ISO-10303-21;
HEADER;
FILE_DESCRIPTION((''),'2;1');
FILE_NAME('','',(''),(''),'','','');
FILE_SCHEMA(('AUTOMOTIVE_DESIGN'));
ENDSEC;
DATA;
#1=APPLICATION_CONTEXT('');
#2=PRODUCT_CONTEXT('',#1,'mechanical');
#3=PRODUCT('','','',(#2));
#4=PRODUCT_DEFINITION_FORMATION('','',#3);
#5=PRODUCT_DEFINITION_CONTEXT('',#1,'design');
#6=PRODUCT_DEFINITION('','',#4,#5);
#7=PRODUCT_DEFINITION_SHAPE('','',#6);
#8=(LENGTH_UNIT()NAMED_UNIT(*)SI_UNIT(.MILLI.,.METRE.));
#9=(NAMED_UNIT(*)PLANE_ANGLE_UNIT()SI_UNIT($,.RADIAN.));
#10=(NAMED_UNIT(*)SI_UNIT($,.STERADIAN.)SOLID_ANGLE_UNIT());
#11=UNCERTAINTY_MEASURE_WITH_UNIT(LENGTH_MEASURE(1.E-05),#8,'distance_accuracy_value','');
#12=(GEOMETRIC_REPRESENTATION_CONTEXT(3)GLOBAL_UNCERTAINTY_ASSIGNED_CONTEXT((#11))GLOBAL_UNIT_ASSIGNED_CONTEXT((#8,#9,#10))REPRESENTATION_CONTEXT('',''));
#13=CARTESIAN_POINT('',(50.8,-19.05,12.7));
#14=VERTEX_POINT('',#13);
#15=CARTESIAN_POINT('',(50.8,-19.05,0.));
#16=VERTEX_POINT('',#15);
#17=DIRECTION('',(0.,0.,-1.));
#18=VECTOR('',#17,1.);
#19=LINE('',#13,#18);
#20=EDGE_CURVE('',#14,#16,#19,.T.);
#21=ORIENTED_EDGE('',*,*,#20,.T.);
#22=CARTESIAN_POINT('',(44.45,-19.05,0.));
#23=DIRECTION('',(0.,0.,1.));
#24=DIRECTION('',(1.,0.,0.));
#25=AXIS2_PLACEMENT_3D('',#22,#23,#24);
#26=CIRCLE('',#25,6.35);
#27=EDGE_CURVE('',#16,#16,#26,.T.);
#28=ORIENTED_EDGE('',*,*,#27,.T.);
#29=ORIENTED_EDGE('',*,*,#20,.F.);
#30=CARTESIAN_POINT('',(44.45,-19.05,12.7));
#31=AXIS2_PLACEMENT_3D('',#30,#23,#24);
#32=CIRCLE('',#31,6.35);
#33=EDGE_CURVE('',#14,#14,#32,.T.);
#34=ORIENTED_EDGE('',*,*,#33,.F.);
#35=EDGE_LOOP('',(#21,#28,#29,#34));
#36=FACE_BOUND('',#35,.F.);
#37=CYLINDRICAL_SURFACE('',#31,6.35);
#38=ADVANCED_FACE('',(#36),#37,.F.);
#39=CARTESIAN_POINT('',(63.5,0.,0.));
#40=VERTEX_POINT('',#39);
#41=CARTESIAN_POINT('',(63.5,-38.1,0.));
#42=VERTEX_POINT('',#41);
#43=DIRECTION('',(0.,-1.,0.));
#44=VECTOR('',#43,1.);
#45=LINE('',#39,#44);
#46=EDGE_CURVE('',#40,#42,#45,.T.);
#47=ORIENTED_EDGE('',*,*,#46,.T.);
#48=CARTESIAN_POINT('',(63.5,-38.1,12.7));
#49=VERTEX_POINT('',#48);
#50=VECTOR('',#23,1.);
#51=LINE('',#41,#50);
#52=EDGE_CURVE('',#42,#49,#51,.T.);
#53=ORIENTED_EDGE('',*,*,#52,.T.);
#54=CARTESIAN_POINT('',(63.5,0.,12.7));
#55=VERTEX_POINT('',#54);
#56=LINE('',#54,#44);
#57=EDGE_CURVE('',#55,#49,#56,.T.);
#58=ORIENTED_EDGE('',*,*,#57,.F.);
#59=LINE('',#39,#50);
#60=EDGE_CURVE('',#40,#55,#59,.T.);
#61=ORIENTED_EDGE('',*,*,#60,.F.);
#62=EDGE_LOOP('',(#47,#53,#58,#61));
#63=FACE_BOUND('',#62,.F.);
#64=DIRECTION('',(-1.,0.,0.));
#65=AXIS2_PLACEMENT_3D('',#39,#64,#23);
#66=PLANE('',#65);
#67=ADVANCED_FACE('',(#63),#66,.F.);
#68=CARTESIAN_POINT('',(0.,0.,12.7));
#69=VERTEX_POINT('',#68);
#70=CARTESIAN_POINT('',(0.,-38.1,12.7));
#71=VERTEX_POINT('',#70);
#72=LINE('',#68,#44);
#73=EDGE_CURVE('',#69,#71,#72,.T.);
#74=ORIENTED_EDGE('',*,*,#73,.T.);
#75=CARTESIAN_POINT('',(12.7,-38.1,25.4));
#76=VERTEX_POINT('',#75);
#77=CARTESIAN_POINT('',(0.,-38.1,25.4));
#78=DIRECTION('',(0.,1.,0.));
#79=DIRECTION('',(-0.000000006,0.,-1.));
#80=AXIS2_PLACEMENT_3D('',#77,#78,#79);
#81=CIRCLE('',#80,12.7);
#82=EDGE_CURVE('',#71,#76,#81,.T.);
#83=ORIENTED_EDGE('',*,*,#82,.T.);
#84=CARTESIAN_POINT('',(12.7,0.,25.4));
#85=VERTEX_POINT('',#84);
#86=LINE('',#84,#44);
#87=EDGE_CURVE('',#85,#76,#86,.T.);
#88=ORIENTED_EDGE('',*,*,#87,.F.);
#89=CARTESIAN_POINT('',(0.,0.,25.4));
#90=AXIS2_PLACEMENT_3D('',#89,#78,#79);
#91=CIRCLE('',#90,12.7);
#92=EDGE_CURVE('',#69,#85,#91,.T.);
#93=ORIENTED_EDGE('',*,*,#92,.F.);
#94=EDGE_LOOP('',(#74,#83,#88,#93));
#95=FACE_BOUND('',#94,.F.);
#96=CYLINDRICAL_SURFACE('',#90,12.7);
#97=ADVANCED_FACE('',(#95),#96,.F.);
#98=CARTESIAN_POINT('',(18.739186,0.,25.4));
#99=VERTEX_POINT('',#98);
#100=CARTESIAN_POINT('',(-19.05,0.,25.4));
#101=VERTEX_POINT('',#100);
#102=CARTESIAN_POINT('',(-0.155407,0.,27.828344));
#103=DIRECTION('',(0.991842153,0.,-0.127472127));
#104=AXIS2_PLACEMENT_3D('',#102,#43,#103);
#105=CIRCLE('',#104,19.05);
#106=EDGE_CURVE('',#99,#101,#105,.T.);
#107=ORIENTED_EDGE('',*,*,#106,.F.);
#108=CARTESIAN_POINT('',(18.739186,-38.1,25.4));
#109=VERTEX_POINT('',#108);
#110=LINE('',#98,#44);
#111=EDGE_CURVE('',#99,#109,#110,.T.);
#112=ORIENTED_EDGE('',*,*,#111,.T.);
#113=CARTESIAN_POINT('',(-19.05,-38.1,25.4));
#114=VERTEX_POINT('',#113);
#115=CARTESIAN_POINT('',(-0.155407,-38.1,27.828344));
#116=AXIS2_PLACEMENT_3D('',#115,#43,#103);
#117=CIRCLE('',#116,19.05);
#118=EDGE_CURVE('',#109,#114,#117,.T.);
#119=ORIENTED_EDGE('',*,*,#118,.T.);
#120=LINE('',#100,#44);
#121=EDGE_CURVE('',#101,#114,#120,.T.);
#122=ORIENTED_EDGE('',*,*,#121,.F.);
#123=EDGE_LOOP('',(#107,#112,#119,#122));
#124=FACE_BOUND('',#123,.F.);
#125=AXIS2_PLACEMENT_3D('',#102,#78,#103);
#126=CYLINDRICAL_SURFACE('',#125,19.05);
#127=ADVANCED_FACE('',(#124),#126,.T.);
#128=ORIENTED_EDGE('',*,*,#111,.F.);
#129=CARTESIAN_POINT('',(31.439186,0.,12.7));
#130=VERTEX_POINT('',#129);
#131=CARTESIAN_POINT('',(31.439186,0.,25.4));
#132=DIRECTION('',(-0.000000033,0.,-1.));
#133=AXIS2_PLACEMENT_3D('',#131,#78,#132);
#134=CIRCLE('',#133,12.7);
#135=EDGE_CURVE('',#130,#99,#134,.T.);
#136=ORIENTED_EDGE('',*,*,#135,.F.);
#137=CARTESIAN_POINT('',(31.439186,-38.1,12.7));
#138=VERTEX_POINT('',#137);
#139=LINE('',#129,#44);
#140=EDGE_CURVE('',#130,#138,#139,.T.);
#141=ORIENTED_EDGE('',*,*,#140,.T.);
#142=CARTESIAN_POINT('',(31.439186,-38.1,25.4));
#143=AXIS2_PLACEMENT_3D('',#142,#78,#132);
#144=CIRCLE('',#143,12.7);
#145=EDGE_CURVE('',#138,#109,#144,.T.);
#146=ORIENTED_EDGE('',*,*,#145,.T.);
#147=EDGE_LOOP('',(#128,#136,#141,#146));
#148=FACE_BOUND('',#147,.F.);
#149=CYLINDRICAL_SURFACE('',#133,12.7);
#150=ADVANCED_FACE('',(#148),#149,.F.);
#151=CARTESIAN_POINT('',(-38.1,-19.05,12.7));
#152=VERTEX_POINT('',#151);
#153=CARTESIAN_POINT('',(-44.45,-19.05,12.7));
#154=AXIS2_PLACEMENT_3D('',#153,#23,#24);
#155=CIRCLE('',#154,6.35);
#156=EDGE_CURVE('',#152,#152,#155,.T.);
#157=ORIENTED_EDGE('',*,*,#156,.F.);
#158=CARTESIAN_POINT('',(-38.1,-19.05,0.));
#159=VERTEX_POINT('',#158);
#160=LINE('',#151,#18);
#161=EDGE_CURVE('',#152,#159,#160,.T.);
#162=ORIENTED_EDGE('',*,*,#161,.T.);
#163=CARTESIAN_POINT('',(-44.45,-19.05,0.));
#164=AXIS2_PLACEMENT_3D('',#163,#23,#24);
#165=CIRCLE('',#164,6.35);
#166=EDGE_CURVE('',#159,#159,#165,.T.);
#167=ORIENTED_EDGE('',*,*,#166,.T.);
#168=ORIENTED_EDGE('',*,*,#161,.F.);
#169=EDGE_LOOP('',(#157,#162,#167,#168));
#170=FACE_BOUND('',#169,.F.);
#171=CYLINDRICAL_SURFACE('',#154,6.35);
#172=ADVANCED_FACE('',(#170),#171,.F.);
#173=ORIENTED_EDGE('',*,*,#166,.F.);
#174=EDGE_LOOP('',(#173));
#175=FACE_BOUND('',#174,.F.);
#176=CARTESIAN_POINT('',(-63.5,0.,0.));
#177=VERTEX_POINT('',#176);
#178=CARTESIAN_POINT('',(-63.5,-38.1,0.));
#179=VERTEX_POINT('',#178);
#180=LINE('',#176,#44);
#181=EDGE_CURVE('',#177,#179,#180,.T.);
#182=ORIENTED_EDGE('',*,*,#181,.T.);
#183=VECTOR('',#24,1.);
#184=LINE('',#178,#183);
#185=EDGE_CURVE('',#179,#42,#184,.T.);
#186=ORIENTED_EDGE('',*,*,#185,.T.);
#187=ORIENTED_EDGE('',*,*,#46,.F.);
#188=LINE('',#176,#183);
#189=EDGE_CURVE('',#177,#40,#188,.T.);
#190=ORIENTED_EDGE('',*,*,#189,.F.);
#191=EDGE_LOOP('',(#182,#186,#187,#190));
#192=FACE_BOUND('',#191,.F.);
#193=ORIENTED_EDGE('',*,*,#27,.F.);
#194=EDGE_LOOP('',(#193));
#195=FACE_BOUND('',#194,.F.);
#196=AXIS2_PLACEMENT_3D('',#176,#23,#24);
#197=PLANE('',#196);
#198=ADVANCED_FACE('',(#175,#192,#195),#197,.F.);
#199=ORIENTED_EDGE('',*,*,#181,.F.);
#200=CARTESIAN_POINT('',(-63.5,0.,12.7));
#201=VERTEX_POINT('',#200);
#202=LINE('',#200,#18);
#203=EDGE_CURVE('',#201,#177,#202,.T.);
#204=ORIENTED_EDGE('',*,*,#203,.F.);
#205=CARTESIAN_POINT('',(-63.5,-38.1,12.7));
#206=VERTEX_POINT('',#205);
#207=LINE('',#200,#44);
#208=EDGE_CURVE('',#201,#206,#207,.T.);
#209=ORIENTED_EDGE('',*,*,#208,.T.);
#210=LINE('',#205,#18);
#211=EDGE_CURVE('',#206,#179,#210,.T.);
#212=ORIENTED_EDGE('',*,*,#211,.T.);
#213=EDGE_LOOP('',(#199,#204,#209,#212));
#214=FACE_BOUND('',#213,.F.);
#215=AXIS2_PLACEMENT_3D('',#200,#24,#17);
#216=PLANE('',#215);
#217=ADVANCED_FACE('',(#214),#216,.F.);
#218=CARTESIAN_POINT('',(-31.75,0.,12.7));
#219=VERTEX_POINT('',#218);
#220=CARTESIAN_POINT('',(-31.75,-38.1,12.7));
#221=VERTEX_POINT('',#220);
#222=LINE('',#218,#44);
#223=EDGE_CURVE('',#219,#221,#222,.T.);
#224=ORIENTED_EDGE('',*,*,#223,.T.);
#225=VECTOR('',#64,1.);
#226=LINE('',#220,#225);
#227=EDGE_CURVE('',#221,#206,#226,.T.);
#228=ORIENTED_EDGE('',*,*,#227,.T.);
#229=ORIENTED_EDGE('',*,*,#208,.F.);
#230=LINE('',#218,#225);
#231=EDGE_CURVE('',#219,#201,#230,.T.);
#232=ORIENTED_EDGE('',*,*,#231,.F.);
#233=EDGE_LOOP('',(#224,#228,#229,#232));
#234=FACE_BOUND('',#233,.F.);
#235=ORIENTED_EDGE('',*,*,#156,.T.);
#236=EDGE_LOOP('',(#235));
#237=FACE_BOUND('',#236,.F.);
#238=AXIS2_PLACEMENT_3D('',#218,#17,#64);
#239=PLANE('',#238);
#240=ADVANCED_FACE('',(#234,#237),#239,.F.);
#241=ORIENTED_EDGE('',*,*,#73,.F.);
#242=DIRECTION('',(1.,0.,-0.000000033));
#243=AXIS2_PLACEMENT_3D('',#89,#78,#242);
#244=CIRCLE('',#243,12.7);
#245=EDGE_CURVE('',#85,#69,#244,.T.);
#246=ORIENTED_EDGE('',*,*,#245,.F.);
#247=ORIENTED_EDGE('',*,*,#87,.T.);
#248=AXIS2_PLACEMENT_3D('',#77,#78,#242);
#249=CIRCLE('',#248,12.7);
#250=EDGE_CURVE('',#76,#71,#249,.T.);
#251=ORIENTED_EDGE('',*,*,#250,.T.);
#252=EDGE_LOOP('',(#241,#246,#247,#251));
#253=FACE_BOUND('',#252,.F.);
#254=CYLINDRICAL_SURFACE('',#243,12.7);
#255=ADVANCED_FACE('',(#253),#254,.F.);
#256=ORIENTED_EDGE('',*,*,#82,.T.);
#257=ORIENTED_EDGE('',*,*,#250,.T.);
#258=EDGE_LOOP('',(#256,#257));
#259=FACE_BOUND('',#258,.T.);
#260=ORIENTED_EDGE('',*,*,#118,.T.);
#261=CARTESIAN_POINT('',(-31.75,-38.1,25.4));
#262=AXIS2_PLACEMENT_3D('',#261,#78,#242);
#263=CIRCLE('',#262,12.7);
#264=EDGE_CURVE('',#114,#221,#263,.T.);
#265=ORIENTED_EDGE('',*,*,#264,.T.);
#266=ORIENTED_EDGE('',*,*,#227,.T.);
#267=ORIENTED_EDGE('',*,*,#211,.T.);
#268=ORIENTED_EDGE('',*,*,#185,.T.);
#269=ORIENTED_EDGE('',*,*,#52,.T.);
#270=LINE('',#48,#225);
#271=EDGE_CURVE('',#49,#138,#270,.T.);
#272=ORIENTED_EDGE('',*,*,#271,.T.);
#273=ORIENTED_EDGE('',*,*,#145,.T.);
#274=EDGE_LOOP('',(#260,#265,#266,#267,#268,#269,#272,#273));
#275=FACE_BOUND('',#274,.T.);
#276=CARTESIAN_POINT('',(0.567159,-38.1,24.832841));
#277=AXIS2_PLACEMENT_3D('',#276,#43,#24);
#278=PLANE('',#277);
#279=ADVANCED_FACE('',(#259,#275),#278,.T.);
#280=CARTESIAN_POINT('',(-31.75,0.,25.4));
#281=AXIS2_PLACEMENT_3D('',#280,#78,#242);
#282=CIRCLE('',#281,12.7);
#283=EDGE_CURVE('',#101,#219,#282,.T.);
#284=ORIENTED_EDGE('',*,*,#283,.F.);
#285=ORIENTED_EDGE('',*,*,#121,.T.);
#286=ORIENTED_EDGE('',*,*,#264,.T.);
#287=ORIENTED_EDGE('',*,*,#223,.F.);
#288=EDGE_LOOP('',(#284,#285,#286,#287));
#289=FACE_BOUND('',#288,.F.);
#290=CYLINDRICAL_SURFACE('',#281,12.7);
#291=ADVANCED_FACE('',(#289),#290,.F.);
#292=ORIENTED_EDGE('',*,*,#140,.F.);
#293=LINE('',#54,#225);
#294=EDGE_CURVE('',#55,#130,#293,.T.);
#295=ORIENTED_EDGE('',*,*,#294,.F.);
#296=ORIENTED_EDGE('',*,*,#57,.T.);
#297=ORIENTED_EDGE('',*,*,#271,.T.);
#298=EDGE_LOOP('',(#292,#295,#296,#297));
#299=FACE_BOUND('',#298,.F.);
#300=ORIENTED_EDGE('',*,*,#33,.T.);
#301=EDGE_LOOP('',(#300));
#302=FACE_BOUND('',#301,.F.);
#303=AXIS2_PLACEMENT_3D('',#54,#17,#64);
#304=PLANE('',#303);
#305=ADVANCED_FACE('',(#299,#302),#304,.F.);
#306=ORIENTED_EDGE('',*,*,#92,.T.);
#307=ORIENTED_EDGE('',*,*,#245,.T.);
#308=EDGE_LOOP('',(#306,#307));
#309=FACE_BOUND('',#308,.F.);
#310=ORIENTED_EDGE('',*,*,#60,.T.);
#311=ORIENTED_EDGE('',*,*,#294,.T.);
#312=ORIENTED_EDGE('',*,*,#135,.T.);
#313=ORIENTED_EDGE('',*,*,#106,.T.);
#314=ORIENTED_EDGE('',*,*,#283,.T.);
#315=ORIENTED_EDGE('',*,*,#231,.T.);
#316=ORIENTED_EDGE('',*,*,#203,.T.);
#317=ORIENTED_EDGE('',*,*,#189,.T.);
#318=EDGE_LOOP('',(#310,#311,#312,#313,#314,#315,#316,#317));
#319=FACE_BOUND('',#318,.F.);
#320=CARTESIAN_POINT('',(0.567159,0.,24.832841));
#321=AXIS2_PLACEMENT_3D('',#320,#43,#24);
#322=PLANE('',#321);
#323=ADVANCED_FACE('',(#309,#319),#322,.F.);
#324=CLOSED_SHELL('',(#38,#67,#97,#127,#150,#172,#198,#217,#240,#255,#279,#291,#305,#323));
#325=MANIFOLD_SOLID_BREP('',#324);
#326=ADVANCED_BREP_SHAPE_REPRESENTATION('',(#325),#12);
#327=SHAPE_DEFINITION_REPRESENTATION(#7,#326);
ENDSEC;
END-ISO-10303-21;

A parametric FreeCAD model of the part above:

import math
import FreeCAD as App
import Part
import Sketcher

V = App.Vector
Q = App.Units.Quantity

doc = App.newDocument("Part")
params = doc.addObject("Spreadsheet::Sheet", "Params")
for row, (alias, value) in enumerate([
    ("sketch1_radius", "0.5 in"),
    ("sketch1_width", "5 in"),
    ("sketch1_radius2", "0.75 in"),
    ("sketch1_height", "0.5 in"),
    ("sketch1_width2", "1.25 in"),
    ("pad1_length", "1.5 in"),
    ("sketch2_diameter", "0.5 in"),
    ("sketch3_diameter", "0.5 in"),
], start=1):
    params.set(f"A{row}", alias)
    params.set(f"B{row}", "=" + value)
    params.setAlias(f"B{row}", alias)

body = doc.addObject("PartDesign::Body", "Body")

# Sketch on XZ plane
sketch1 = body.newObject("Sketcher::SketchObject", "Sketch")
sketch1.AttachmentSupport = (doc.getObject("XZ_Plane"), [""])
sketch1.MapMode = "FlatFace"
sketch1.addGeometry([
    Part.LineSegment(V(-64, 13, 0), V(-64, 0, 0)),  # 0
    Part.LineSegment(V(-64, 0, 0), V(64, 0, 0)),  # 1
    Part.LineSegment(V(64, 0, 0), V(64, 13, 0)),  # 2
    Part.LineSegment(V(64, 13, 0), V(31, 13, 0)),  # 3
    Part.ArcOfCircle(Part.Circle(V(31, 25, 0), V(0, 0, 1), 13), math.radians(-180), math.radians(-90)),  # 4
    Part.ArcOfCircle(Part.Circle(V(0, 28, 0), V(0, 0, 1), 19), math.radians(-7), math.radians(187)),  # 5
    Part.ArcOfCircle(Part.Circle(V(-32, 25, 0), V(0, 0, 1), 13), math.radians(-90), math.radians(0)),  # 6
    Part.LineSegment(V(-32, 13, 0), V(-64, 13, 0)),  # 7
    Part.ArcOfCircle(Part.Circle(V(0, 25, 0), V(0, 0, 1), 13), math.radians(0), math.radians(270)),  # 8
    Part.ArcOfCircle(Part.Circle(V(0, 25, 0), V(0, 0, 1), 13), math.radians(-90), math.radians(0)),  # 9
], False)
sketch1.addConstraint([
    Sketcher.Constraint("Coincident", 0, 2, 1, 1),
    Sketcher.Constraint("Coincident", 1, 2, 2, 1),
    Sketcher.Constraint("Coincident", 2, 2, 3, 1),
    Sketcher.Constraint("Tangent", 3, 2, 4, 2),
    Sketcher.Constraint("Coincident", 4, 1, 5, 1),
    Sketcher.Constraint("Coincident", 5, 2, 6, 2),
    Sketcher.Constraint("Tangent", 6, 1, 7, 1),
    Sketcher.Constraint("Coincident", 7, 2, 0, 1),
    Sketcher.Constraint("Tangent", 8, 1, 9, 2),
    Sketcher.Constraint("Coincident", 9, 1, 8, 2),
    Sketcher.Constraint("Vertical", 0),
    Sketcher.Constraint("Horizontal", 1),
    Sketcher.Constraint("Vertical", 2),
    Sketcher.Constraint("Horizontal", 3),
    Sketcher.Constraint("Horizontal", 7),
    Sketcher.Constraint("Equal", 4, 6),
    Sketcher.Constraint("Equal", 6, 8),
    Sketcher.Constraint("Symmetric", 0, 2, 1, 2, -1, 1),
    Sketcher.Constraint("PointOnObject", 8, 3, -2),
    Sketcher.Constraint("PointOnObject", 9, 1, -2),
    Sketcher.Constraint("Horizontal", 4, 3, 6, 3),
    Sketcher.Constraint("Horizontal", 6, 3, 8, 3),
    Sketcher.Constraint("Horizontal", 9, 3, 4, 1),
    Sketcher.Constraint("Horizontal", 4, 1, 5, 2),
    Sketcher.Constraint("Horizontal", 5, 2, 8, 1),
    Sketcher.Constraint("Radius", 4, Q("0.5 in")),
    Sketcher.Constraint("DistanceX", 1, 1, 1, 2, Q("5 in")),
    Sketcher.Constraint("Radius", 5, Q("0.75 in")),
    Sketcher.Constraint("DistanceY", 0, 2, 0, 1, Q("0.5 in")),
    Sketcher.Constraint("DistanceX", 7, 2, 7, 1, Q("1.25 in")),
    Sketcher.Constraint("DistanceX", 3, 2, 3, 1, Q("32.060814 mm")),
])
sketch1.setExpression("Constraints[25]", "Params.sketch1_radius")
sketch1.setExpression("Constraints[26]", "Params.sketch1_width")
sketch1.setExpression("Constraints[27]", "Params.sketch1_radius2")
sketch1.setExpression("Constraints[28]", "Params.sketch1_height")
sketch1.setExpression("Constraints[29]", "Params.sketch1_width2")
pad1 = body.newObject("PartDesign::Pad", "Pad")
pad1.Profile = sketch1
pad1.setExpression("Length", "Params.pad1_length")

# Sketch on XY plane
sketch2 = body.newObject("Sketcher::SketchObject", "Sketch001")
sketch2.AttachmentSupport = (doc.getObject("XY_Plane"), [""])
sketch2.MapMode = "FlatFace"
sketch2.AttachmentOffset = App.Placement(V(0, 0, 0.5 * 25.4), App.Rotation())
sketch2.addGeometry(Part.Circle(V(-44, -19, 0), V(0, 0, 1), 6), False)
sketch2.addConstraint([
    Sketcher.Constraint("Diameter", 0, Q("0.5 in")),
    Sketcher.Constraint("DistanceX", 0, 3, -1, 1, Q("1.75 in")),
    Sketcher.Constraint("DistanceY", 0, 3, -1, 1, Q("0.75 in")),
])
sketch2.setExpression("Constraints[0]", "Params.sketch2_diameter")
pocket1 = body.newObject("PartDesign::Pocket", "Pocket")
pocket1.Profile = sketch2
pocket1.Type = "ThroughAll"

# Sketch on XY plane
sketch3 = body.newObject("Sketcher::SketchObject", "Sketch002")
sketch3.AttachmentSupport = (doc.getObject("XY_Plane"), [""])
sketch3.MapMode = "FlatFace"
sketch3.AttachmentOffset = App.Placement(V(0, 0, 0.5 * 25.4), App.Rotation())
sketch3.addGeometry([
    Part.Circle(V(44, -19, 0), V(0, 0, 1), 6),
    Part.Circle(V(-44, -19, 0), V(0, 0, 1), 6),
], False)
sketch3.addConstraint([
    Sketcher.Constraint("Equal", 0, 1),
    Sketcher.Constraint("Symmetric", 0, 3, 1, 3, -2),
    Sketcher.Constraint("Diameter", 0, Q("0.5 in")),
    Sketcher.Constraint("DistanceX", 1, 3, 0, 3, Q("3.5 in")),
    Sketcher.Constraint("DistanceY", 0, 3, -1, 1, Q("0.75 in")),
])
sketch3.setExpression("Constraints[2]", "Params.sketch3_diameter")
pocket2 = body.newObject("PartDesign::Pocket", "Pocket001")
pocket2.Profile = sketch3
pocket2.Type = "ThroughAll"

doc.recompute()
